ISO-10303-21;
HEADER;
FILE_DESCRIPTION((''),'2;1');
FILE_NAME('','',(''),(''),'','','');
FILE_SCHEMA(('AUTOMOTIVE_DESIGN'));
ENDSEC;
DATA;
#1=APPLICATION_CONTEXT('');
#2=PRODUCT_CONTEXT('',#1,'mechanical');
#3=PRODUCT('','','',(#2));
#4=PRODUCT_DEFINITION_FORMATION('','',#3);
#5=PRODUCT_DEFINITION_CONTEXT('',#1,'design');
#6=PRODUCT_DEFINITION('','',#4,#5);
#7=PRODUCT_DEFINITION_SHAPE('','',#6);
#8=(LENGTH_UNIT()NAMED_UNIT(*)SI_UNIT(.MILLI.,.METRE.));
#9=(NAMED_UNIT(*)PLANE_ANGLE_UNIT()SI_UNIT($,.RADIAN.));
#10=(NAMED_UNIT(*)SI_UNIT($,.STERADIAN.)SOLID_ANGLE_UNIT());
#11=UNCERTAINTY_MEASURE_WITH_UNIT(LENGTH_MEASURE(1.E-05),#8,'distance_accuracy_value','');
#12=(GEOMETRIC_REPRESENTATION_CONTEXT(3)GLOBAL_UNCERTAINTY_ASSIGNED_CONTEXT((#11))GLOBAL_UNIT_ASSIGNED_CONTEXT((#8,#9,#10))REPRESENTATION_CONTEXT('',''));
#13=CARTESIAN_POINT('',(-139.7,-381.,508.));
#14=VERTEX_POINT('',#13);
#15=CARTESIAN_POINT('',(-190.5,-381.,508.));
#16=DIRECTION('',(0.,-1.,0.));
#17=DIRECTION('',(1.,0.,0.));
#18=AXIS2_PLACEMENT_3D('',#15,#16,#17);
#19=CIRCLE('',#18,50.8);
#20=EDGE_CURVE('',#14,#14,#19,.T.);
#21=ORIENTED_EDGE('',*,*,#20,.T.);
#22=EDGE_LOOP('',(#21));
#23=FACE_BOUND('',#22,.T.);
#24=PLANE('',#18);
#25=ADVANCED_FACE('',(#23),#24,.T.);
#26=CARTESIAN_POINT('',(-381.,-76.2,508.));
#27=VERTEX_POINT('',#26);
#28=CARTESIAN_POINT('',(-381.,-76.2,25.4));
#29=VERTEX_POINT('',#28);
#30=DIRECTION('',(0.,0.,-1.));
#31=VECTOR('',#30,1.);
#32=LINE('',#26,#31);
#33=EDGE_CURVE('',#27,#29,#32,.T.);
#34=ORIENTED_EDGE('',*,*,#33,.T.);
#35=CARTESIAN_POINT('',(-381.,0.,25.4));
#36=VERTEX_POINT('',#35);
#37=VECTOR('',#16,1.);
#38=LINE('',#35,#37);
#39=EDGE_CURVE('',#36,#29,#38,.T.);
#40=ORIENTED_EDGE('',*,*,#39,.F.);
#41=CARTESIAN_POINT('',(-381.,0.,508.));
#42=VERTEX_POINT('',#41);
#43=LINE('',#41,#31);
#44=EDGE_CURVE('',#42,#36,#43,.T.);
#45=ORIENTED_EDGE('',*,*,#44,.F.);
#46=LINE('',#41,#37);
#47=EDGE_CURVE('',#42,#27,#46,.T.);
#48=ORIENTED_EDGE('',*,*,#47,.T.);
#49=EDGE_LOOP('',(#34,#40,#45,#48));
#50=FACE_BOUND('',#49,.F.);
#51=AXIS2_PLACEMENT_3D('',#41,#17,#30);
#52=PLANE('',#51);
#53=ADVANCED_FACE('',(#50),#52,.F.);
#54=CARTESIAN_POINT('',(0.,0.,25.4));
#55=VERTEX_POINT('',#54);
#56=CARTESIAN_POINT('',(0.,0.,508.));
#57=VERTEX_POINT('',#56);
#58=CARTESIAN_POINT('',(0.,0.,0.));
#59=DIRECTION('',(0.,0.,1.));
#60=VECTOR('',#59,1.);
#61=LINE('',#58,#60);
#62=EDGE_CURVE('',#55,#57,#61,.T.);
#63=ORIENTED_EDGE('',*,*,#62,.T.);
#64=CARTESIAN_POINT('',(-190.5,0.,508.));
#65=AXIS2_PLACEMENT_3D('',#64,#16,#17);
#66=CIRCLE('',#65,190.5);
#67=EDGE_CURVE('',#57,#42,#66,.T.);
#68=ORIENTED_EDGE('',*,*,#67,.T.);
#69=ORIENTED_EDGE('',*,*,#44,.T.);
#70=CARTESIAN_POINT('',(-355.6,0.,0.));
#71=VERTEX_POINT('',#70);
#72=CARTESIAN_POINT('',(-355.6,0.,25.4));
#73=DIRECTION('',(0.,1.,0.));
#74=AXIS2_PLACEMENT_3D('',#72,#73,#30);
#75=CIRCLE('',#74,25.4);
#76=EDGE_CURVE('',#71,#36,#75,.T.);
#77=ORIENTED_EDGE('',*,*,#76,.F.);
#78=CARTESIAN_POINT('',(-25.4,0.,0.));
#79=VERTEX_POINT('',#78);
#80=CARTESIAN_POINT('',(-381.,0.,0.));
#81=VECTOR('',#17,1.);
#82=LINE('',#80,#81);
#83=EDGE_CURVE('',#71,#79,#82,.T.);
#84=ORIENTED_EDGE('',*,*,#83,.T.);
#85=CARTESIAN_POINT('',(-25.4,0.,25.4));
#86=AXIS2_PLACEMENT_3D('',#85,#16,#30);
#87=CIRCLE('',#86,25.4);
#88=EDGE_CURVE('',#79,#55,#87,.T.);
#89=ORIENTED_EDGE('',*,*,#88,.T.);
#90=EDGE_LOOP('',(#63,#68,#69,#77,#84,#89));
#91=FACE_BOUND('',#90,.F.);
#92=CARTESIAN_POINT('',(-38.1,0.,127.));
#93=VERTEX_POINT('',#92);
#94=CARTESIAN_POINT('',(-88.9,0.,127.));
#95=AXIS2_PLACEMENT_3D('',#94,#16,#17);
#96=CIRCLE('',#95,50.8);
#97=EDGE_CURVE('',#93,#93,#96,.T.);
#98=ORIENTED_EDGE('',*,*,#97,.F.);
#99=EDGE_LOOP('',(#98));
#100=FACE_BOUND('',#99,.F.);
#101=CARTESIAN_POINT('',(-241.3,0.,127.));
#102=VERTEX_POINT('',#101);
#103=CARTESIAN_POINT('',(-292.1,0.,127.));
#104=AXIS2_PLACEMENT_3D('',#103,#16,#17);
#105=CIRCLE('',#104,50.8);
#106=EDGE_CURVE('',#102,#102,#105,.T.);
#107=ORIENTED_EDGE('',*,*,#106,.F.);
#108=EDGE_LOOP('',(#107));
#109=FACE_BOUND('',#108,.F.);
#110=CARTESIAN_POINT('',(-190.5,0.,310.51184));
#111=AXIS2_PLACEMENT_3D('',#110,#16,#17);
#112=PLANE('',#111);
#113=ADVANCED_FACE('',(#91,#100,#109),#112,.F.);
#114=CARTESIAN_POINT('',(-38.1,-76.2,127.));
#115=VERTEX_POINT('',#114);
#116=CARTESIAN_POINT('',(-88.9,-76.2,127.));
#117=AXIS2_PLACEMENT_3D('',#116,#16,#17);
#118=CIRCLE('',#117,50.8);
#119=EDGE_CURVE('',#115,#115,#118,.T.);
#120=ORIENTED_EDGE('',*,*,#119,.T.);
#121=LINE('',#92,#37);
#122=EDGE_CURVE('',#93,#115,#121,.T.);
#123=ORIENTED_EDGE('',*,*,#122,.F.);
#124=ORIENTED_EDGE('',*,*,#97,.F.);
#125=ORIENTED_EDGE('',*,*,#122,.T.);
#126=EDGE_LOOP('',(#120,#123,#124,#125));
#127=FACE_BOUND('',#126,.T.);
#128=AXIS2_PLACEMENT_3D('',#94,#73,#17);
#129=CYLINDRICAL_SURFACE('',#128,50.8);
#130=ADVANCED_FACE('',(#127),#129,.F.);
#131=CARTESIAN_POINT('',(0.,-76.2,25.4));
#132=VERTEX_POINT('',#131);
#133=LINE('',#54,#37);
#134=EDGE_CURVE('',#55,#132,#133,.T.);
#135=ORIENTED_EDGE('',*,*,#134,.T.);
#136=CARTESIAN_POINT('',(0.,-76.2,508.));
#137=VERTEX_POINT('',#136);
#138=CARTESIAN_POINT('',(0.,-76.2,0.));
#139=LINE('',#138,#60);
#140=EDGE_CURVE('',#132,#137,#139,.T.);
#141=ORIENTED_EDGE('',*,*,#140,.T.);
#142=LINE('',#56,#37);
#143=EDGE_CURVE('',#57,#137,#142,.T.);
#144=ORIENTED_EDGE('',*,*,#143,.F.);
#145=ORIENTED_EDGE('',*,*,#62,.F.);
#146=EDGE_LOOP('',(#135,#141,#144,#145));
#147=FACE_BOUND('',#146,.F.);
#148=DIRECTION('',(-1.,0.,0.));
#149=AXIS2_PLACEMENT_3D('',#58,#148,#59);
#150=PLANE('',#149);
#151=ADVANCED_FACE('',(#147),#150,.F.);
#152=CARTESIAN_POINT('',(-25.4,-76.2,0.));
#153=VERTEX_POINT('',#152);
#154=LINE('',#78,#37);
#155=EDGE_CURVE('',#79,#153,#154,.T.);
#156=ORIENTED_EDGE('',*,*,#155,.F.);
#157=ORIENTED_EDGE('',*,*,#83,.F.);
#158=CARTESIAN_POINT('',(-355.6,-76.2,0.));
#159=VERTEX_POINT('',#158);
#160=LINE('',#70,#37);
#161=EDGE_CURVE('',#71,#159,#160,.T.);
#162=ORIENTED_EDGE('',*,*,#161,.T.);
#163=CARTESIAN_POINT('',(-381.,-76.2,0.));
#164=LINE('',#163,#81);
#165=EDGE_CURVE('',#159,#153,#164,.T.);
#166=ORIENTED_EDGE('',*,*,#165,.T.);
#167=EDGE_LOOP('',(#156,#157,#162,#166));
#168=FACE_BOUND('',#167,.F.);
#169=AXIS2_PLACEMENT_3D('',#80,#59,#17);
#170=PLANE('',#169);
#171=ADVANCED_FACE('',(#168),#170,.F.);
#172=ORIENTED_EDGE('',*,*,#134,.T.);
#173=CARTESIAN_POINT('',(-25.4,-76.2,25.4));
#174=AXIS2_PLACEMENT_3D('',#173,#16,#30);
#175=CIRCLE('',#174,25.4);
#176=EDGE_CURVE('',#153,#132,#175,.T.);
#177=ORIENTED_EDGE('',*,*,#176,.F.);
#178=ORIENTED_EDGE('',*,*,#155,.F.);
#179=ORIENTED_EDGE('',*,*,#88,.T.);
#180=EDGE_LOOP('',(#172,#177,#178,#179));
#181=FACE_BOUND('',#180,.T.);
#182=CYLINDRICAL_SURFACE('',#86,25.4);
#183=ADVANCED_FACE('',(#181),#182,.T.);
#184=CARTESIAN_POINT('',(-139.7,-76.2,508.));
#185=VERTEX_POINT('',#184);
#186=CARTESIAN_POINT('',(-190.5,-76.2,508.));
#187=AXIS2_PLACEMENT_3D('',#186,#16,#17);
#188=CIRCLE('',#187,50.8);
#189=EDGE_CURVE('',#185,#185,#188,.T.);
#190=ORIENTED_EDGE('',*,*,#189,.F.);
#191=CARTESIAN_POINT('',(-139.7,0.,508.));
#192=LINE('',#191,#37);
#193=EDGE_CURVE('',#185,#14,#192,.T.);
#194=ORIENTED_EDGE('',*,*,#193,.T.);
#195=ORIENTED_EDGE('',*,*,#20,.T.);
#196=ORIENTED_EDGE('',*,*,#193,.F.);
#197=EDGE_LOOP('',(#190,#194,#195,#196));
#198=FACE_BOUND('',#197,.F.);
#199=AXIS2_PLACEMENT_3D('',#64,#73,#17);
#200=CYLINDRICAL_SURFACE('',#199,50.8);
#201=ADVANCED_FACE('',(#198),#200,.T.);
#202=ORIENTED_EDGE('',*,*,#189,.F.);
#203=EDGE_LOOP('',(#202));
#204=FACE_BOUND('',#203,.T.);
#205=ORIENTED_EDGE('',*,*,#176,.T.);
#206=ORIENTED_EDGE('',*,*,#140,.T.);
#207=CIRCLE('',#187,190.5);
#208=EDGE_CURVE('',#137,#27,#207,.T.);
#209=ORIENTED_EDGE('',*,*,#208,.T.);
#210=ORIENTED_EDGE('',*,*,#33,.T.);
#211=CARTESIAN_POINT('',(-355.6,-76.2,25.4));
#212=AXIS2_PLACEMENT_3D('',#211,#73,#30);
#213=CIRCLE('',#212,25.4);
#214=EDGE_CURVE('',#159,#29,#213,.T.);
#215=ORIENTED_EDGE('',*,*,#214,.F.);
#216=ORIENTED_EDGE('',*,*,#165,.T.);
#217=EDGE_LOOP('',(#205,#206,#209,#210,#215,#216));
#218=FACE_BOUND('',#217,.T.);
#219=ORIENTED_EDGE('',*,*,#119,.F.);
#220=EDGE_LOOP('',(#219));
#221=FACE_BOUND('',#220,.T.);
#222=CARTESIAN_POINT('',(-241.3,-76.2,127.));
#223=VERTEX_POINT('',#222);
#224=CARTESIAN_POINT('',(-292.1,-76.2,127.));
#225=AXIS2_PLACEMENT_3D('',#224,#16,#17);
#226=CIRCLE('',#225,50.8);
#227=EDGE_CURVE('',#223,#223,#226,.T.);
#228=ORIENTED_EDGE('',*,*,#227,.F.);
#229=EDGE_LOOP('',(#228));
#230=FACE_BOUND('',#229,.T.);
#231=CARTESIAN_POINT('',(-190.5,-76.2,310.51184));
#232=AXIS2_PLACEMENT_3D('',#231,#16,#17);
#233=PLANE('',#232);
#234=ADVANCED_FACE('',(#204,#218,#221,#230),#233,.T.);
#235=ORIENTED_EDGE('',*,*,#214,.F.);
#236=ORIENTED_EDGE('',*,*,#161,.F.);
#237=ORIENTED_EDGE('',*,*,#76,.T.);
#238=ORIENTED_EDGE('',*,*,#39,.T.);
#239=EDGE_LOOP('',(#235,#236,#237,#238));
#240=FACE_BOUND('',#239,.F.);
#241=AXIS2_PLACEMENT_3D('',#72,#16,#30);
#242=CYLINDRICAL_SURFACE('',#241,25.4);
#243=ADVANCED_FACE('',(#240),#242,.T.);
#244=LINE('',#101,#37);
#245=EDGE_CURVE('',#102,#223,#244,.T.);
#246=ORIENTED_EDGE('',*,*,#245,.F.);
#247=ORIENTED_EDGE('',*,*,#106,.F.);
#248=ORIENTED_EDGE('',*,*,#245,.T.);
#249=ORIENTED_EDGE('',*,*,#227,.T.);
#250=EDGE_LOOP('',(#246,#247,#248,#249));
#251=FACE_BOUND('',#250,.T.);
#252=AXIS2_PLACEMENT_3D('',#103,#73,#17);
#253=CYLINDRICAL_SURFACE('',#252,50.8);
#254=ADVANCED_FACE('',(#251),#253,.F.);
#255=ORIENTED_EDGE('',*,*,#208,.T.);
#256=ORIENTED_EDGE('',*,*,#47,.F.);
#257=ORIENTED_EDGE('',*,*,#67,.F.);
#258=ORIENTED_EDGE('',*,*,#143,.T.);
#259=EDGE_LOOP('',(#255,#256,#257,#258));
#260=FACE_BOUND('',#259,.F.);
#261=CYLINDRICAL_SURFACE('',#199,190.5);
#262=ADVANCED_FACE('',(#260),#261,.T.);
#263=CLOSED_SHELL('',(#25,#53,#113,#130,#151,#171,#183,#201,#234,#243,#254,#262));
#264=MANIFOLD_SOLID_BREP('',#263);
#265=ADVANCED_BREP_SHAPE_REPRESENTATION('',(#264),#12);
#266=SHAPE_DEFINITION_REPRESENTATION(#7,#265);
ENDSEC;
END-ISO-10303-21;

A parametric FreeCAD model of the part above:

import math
import FreeCAD as App
import Part
import Sketcher

V = App.Vector
Q = App.Units.Quantity


def edges_at(feature, points):
    """Names of the edges that pass closest to the given points."""
    edges = feature.Shape.Edges
    near = lambda p: min(range(len(edges)), key=lambda i: edges[i].distToShape(Part.Vertex(*p))[0])
    return sorted({f"Edge{near(p) + 1}" for p in points})

doc = App.newDocument("Part")
body = doc.addObject("PartDesign::Body", "Body")

# Sketch on XZ plane
sketch1 = body.newObject("Sketcher::SketchObject", "Sketch")
sketch1.AttachmentSupport = (doc.getObject("XZ_Plane"), [""])
sketch1.MapMode = "FlatFace"
sketch1.addGeometry([
    Part.LineSegment(V(-381, 0, 0), V(0, 0, 0)),  # 0
    Part.LineSegment(V(0, 0, 0), V(0, 508, 0)),  # 1
    Part.ArcOfCircle(Part.Circle(V(-190, 508, 0), V(0, 0, 1), 190), math.radians(0), math.radians(180)),  # 2
    Part.LineSegment(V(-381, 508, 0), V(-381, 0, 0)),  # 3
    Part.Circle(V(-292, 127, 0), V(0, 0, 1), 51),  # 4
    Part.Circle(V(-89, 127, 0), V(0, 0, 1), 51),  # 5
    Part.Circle(V(-190, 508, 0), V(0, 0, 1), 51),  # 6
], False)
sketch1.addConstraint([
    Sketcher.Constraint("Coincident", 0, 2, 1, 1),
    Sketcher.Constraint("Tangent", 1, 2, 2, 1),
    Sketcher.Constraint("Tangent", 2, 2, 3, 1),
    Sketcher.Constraint("Coincident", 3, 2, 0, 1),
    Sketcher.Constraint("Horizontal", 0),
    Sketcher.Constraint("Vertical", 1),
    Sketcher.Constraint("Vertical", 3),
    Sketcher.Constraint("Coincident", 0, 2, -1, 1),
    Sketcher.Constraint("Coincident", 6, 3, 2, 3),
    Sketcher.Constraint("Equal", 4, 5),
    Sketcher.Constraint("Equal", 5, 6),
    Sketcher.Constraint("Horizontal", 4, 3, 5, 3),
    Sketcher.Constraint("Diameter", 4, Q("4 in")),
    Sketcher.Constraint("Radius", 2, Q("7.5 in")),
    Sketcher.Constraint("DistanceY", 1, 1, 1, 2, Q("20 in")),
    Sketcher.Constraint("DistanceY", -1, 1, 4, 3, Q("5 in")),
    Sketcher.Constraint("DistanceX", 4, 3, 2, 3, Q("4 in")),
    Sketcher.Constraint("DistanceX", 4, 3, 5, 3, Q("8 in")),
])
pad1 = body.newObject("PartDesign::Pad", "Pad")
pad1.Profile = sketch1
pad1.Length = Q("3 in")

# Sketch on XZ plane
sketch2 = body.newObject("Sketcher::SketchObject", "Sketch001")
sketch2.AttachmentSupport = (doc.getObject("XZ_Plane"), [""])
sketch2.MapMode = "FlatFace"
sketch2.addGeometry(Part.Circle(V(-190, 508, 0), V(0, 0, 1), 51), False)
sketch2.addConstraint([
    Sketcher.Constraint("Diameter", 0, Q("4 in")),
    Sketcher.Constraint("DistanceY", -1, 1, 0, 3, Q("20 in")),
    Sketcher.Constraint("DistanceX", 0, 3, -1, 1, Q("7.5 in")),
])
pad2 = body.newObject("PartDesign::Pad", "Pad001")
pad2.Profile = sketch2
pad2.Length = Q("15 in")
doc.recompute()

fillet = body.newObject("PartDesign::Fillet", "Fillet")
fillet.Base = (pad2, edges_at(pad2, [(-381, -38.1, 0), (0, -38.1, 0)]))
fillet.Radius = Q("1 in")

doc.recompute()
